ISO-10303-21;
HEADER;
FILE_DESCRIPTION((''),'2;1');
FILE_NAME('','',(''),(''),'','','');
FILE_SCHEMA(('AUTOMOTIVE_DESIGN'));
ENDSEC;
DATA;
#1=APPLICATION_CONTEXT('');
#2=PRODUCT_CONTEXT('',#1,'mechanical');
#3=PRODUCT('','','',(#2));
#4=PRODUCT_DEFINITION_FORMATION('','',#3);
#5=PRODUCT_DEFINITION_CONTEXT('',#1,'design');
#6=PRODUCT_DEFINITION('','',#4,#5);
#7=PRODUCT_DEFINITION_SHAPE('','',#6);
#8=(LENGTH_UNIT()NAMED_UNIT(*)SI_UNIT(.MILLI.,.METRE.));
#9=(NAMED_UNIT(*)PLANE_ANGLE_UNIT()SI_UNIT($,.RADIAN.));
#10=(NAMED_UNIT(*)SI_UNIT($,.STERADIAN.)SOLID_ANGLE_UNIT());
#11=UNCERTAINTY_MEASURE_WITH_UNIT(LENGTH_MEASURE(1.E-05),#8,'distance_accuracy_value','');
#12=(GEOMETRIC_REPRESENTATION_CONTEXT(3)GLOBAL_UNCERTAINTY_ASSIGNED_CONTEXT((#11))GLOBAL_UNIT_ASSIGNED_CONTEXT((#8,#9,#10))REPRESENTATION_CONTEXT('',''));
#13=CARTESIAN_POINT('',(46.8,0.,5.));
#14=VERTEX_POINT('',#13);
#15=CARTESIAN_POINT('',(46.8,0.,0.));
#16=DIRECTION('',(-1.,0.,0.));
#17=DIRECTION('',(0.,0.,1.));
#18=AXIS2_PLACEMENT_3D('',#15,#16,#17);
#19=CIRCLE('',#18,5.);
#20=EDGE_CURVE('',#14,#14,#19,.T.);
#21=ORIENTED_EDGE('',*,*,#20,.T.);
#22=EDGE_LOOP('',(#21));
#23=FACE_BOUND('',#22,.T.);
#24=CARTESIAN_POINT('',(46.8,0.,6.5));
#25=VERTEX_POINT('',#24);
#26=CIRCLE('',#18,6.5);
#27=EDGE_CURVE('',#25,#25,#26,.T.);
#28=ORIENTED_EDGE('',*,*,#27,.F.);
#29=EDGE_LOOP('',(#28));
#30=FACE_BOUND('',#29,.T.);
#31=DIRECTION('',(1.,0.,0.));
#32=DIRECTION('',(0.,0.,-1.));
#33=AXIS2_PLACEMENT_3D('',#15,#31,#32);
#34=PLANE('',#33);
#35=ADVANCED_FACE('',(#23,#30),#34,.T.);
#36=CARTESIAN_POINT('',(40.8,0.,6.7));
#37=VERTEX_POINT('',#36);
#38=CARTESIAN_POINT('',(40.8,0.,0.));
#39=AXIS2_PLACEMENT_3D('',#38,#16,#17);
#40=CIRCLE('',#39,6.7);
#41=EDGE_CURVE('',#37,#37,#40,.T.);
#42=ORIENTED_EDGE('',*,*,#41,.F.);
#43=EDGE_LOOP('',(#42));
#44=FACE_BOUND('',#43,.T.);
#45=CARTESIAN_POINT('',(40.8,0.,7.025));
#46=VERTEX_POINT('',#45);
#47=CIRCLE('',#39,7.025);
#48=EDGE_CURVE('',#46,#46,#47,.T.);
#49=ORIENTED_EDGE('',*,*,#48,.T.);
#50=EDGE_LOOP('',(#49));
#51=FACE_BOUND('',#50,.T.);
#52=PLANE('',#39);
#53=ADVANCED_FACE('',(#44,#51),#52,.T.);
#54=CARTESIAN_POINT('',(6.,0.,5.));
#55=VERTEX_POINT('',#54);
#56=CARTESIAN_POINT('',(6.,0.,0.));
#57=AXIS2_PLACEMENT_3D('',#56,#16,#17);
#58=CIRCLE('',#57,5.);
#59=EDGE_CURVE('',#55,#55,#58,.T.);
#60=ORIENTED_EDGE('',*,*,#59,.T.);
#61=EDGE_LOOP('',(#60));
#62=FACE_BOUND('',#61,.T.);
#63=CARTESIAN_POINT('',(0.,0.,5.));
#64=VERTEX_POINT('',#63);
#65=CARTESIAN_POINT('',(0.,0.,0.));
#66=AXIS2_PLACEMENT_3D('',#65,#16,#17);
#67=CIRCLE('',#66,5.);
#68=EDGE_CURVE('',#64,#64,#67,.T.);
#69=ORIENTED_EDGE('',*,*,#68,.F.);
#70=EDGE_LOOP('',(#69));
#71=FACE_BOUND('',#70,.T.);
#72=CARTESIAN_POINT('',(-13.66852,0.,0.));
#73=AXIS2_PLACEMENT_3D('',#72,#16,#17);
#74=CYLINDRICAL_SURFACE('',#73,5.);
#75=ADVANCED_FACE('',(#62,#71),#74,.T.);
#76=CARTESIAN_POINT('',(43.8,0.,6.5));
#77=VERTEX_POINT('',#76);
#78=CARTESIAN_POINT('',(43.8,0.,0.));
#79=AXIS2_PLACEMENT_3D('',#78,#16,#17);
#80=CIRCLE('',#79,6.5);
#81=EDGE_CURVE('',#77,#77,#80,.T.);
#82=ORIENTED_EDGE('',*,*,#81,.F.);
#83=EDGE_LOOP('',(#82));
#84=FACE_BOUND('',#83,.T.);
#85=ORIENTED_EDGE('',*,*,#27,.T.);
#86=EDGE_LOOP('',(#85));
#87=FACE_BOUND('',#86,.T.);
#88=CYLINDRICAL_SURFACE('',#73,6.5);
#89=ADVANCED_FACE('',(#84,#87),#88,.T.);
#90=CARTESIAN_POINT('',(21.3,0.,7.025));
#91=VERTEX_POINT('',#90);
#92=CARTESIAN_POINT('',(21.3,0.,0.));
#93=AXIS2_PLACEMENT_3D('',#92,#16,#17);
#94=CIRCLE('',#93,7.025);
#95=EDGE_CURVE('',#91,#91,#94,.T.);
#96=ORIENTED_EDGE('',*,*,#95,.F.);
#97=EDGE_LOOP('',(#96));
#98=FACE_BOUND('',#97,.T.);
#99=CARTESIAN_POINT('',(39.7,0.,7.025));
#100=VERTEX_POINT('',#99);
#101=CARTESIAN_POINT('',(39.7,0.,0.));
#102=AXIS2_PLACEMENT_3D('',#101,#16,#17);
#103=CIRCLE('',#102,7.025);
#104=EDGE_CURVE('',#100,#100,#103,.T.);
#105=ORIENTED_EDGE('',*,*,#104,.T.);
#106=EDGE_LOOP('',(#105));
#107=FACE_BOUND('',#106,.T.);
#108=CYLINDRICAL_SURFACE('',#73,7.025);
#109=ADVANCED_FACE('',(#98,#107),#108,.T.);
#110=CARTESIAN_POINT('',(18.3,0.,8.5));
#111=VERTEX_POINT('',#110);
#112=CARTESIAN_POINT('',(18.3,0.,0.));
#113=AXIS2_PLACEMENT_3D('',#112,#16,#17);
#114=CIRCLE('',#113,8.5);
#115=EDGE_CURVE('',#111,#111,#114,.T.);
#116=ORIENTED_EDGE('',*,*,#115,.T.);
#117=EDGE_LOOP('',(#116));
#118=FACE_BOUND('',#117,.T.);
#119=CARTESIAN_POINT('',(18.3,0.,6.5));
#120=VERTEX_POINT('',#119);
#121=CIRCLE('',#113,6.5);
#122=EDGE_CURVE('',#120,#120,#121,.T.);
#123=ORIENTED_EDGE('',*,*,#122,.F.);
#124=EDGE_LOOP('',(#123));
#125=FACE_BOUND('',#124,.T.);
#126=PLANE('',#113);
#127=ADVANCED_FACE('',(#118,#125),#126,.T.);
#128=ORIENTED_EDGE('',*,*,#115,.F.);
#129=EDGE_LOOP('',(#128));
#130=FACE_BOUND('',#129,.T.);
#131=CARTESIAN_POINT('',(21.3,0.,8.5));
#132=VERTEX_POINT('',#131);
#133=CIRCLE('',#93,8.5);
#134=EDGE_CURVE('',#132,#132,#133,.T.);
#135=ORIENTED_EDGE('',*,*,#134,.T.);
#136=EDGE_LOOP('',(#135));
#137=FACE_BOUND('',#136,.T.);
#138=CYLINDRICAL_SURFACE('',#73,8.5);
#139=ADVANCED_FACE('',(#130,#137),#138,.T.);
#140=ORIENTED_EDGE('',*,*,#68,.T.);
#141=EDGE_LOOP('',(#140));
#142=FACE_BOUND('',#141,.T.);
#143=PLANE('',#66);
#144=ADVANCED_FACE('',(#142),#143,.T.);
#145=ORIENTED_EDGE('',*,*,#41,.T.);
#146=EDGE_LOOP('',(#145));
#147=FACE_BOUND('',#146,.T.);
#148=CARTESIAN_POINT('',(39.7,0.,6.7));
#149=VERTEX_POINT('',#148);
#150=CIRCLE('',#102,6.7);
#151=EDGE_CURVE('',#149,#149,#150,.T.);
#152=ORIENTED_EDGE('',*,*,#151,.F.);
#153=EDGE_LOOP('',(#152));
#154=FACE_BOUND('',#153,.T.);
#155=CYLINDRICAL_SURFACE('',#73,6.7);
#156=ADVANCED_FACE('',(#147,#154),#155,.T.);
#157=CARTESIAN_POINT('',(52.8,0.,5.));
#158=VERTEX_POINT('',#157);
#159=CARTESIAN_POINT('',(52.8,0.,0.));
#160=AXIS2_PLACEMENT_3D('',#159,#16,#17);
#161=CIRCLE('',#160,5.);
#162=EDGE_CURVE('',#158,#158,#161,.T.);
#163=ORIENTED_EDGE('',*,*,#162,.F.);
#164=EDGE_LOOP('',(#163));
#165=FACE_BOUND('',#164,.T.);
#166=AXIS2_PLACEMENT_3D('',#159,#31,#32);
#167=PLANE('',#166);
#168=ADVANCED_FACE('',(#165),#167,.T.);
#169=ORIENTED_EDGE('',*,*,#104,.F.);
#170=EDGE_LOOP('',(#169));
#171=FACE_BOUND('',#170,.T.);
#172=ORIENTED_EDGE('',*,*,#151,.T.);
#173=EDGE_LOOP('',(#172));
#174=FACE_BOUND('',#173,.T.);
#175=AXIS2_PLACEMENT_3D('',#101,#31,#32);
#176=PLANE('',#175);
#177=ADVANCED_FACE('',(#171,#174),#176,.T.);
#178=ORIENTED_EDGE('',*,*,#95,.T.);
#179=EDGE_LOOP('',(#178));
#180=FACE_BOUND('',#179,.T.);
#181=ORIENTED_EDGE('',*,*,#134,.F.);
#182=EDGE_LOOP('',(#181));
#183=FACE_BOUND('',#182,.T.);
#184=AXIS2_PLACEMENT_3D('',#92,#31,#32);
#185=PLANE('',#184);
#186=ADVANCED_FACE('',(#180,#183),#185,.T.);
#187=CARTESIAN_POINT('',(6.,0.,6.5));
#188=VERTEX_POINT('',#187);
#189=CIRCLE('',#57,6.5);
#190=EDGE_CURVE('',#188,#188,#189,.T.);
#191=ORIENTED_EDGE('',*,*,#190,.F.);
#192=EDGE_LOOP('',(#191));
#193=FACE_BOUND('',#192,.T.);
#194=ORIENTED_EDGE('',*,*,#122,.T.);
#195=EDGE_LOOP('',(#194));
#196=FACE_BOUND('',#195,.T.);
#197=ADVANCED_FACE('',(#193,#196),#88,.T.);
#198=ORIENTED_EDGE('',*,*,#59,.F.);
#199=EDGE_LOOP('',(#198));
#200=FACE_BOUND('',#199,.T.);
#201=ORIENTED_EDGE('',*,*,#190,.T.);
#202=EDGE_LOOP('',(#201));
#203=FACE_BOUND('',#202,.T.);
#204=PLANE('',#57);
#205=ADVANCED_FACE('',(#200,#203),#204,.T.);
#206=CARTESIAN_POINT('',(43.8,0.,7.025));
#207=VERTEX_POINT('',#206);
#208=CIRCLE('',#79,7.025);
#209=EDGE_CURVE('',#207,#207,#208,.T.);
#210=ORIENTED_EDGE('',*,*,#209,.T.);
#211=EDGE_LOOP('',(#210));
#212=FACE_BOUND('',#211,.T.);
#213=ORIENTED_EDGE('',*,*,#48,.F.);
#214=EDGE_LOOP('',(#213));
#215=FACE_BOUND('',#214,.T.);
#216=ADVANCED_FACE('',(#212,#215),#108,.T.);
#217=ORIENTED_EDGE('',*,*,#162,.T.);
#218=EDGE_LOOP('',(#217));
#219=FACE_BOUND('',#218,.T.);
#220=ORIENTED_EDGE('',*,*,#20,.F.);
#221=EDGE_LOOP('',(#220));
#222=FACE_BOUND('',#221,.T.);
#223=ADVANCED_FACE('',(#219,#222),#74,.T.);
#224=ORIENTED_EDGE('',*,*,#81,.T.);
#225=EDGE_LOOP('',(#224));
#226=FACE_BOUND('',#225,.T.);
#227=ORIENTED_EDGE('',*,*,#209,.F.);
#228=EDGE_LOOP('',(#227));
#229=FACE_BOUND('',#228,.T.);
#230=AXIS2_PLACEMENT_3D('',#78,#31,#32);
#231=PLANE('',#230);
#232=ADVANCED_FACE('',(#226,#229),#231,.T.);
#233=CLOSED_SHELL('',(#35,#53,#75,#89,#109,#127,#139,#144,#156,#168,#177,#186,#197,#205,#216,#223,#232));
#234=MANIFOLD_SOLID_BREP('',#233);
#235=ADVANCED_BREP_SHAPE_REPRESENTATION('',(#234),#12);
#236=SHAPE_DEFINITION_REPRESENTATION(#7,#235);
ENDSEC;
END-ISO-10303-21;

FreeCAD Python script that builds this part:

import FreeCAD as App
import Part
import Sketcher
Q = App.Units.Quantity

doc = App.newDocument("Part")
body = doc.addObject("PartDesign::Body", "Body")

# Sketch on XY plane
sketch1 = body.newObject("Sketcher::SketchObject", "Sketch")
sketch1.AttachmentSupport = (doc.getObject("XY_Plane"), [""])
sketch1.MapMode = "FlatFace"
sketch1.addGeometry(Part.LineSegment(App.Vector(0, 5, 0), App.Vector(0, 0, 0)), False)
sketch1.addGeometry(Part.LineSegment(App.Vector(0, 0, 0), App.Vector(52.8, 0, 0)), False)
sketch1.addGeometry(Part.LineSegment(App.Vector(52.8, 0, 0), App.Vector(52.8, 5, 0)), False)
sketch1.addGeometry(Part.LineSegment(App.Vector(52.8, 5, 0), App.Vector(46.8, 5, 0)), False)
sketch1.addGeometry(Part.LineSegment(App.Vector(46.8, 5, 0), App.Vector(46.8, 6.5, 0)), False)
sketch1.addGeometry(Part.LineSegment(App.Vector(46.8, 6.5, 0), App.Vector(43.8, 6.5, 0)), False)
sketch1.addGeometry(Part.LineSegment(App.Vector(43.8, 6.5, 0), App.Vector(43.8, 7.03, 0)), False)
sketch1.addGeometry(Part.LineSegment(App.Vector(43.8, 7.03, 0), App.Vector(40.8, 7.03, 0)), False)
sketch1.addGeometry(Part.LineSegment(App.Vector(40.8, 7.03, 0), App.Vector(40.8, 6.7, 0)), False)
sketch1.addGeometry(Part.LineSegment(App.Vector(40.8, 6.7, 0), App.Vector(39.7, 6.7, 0)), False)
sketch1.addGeometry(Part.LineSegment(App.Vector(39.7, 6.7, 0), App.Vector(39.7, 7.03, 0)), False)
sketch1.addGeometry(Part.LineSegment(App.Vector(39.7, 7.03, 0), App.Vector(21.3, 7.03, 0)), False)
sketch1.addGeometry(Part.LineSegment(App.Vector(21.3, 7.03, 0), App.Vector(21.3, 8.5, 0)), False)
sketch1.addGeometry(Part.LineSegment(App.Vector(21.3, 8.5, 0), App.Vector(18.3, 8.5, 0)), False)
sketch1.addGeometry(Part.LineSegment(App.Vector(18.3, 8.5, 0), App.Vector(18.3, 6.5, 0)), False)
sketch1.addGeometry(Part.LineSegment(App.Vector(18.3, 6.5, 0), App.Vector(6, 6.5, 0)), False)
sketch1.addGeometry(Part.LineSegment(App.Vector(6, 6.5, 0), App.Vector(6, 5, 0)), False)
sketch1.addGeometry(Part.LineSegment(App.Vector(6, 5, 0), App.Vector(0, 5, 0)), False)
sketch1.addConstraint(Sketcher.Constraint("Coincident", 0, 2, 1, 1))
sketch1.addConstraint(Sketcher.Constraint("Coincident", 1, 2, 2, 1))
sketch1.addConstraint(Sketcher.Constraint("Coincident", 2, 2, 3, 1))
sketch1.addConstraint(Sketcher.Constraint("Coincident", 3, 2, 4, 1))
sketch1.addConstraint(Sketcher.Constraint("Coincident", 4, 2, 5, 1))
sketch1.addConstraint(Sketcher.Constraint("Coincident", 5, 2, 6, 1))
sketch1.addConstraint(Sketcher.Constraint("Coincident", 6, 2, 7, 1))
sketch1.addConstraint(Sketcher.Constraint("Coincident", 7, 2, 8, 1))
sketch1.addConstraint(Sketcher.Constraint("Coincident", 8, 2, 9, 1))
sketch1.addConstraint(Sketcher.Constraint("Coincident", 9, 2, 10, 1))
sketch1.addConstraint(Sketcher.Constraint("Coincident", 10, 2, 11, 1))
sketch1.addConstraint(Sketcher.Constraint("Coincident", 11, 2, 12, 1))
sketch1.addConstraint(Sketcher.Constraint("Coincident", 12, 2, 13, 1))
sketch1.addConstraint(Sketcher.Constraint("Coincident", 13, 2, 14, 1))
sketch1.addConstraint(Sketcher.Constraint("Coincident", 14, 2, 15, 1))
sketch1.addConstraint(Sketcher.Constraint("Coincident", 15, 2, 16, 1))
sketch1.addConstraint(Sketcher.Constraint("Coincident", 16, 2, 17, 1))
sketch1.addConstraint(Sketcher.Constraint("Coincident", 17, 2, 0, 1))
sketch1.addConstraint(Sketcher.Constraint("Vertical", 0))
sketch1.addConstraint(Sketcher.Constraint("Horizontal", 1))
sketch1.addConstraint(Sketcher.Constraint("Vertical", 2))
sketch1.addConstraint(Sketcher.Constraint("Horizontal", 3))
sketch1.addConstraint(Sketcher.Constraint("Vertical", 4))
sketch1.addConstraint(Sketcher.Constraint("Horizontal", 5))
sketch1.addConstraint(Sketcher.Constraint("Vertical", 6))
sketch1.addConstraint(Sketcher.Constraint("Horizontal", 7))
sketch1.addConstraint(Sketcher.Constraint("Vertical", 8))
sketch1.addConstraint(Sketcher.Constraint("Horizontal", 9))
sketch1.addConstraint(Sketcher.Constraint("Vertical", 10))
sketch1.addConstraint(Sketcher.Constraint("Horizontal", 11))
sketch1.addConstraint(Sketcher.Constraint("Vertical", 12))
sketch1.addConstraint(Sketcher.Constraint("Horizontal", 13))
sketch1.addConstraint(Sketcher.Constraint("Vertical", 14))
sketch1.addConstraint(Sketcher.Constraint("Horizontal", 15))
sketch1.addConstraint(Sketcher.Constraint("Vertical", 16))
sketch1.addConstraint(Sketcher.Constraint("Horizontal", 17))
sketch1.addConstraint(Sketcher.Constraint("Coincident", 0, 2, -1, 1))
sketch1.addConstraint(Sketcher.Constraint("Horizontal", 7, 2, 10, 2))
sketch1.addConstraint(Sketcher.Constraint("Horizontal", 5, 2, 14, 2))
sketch1.addConstraint(Sketcher.Constraint("Horizontal", 3, 2, 16, 2))
sketch1.addConstraint(Sketcher.Constraint("Equal", 5, 7))
sketch1.addConstraint(Sketcher.Constraint("Equal", 7, 13))
sketch1.addConstraint(Sketcher.Constraint("Equal", 3, 17))
sketch1.addConstraint(Sketcher.Constraint("DistanceX", 3, 2, 3, 1, Q("6 mm")))
sketch1.addConstraint(Sketcher.Constraint("DistanceX", 5, 2, 5, 1, Q("3 mm")))
sketch1.addConstraint(Sketcher.Constraint("DistanceY", 0, 2, 0, 1, Q("5 mm")))
sketch1.addConstraint(Sketcher.Constraint("DistanceY", 14, 2, 14, 1, Q("2 mm")))
sketch1.addConstraint(Sketcher.Constraint("DistanceX", 1, 1, 1, 2, Q("52.8 mm")))
sketch1.addConstraint(Sketcher.Constraint("DistanceX", 9, 2, 9, 1, Q("1.1 mm")))
sketch1.addConstraint(Sketcher.Constraint("DistanceX", 11, 2, 11, 1, Q("18.4 mm")))
sketch1.addConstraint(Sketcher.Constraint("DistanceY", 4, 1, 4, 2, Q("1.5 mm")))
sketch1.addConstraint(Sketcher.Constraint("DistanceY", -1, 1, 8, 2, Q("6.7 mm")))
sketch1.addConstraint(Sketcher.Constraint("DistanceY", 6, 1, 6, 2, Q("0.525 mm")))
revolution = body.newObject("PartDesign::Revolution", "Revolution")
revolution.Profile = sketch1
revolution.ReferenceAxis = (sketch1, ["H_Axis"])
revolution.Angle = 360

doc.recompute()
